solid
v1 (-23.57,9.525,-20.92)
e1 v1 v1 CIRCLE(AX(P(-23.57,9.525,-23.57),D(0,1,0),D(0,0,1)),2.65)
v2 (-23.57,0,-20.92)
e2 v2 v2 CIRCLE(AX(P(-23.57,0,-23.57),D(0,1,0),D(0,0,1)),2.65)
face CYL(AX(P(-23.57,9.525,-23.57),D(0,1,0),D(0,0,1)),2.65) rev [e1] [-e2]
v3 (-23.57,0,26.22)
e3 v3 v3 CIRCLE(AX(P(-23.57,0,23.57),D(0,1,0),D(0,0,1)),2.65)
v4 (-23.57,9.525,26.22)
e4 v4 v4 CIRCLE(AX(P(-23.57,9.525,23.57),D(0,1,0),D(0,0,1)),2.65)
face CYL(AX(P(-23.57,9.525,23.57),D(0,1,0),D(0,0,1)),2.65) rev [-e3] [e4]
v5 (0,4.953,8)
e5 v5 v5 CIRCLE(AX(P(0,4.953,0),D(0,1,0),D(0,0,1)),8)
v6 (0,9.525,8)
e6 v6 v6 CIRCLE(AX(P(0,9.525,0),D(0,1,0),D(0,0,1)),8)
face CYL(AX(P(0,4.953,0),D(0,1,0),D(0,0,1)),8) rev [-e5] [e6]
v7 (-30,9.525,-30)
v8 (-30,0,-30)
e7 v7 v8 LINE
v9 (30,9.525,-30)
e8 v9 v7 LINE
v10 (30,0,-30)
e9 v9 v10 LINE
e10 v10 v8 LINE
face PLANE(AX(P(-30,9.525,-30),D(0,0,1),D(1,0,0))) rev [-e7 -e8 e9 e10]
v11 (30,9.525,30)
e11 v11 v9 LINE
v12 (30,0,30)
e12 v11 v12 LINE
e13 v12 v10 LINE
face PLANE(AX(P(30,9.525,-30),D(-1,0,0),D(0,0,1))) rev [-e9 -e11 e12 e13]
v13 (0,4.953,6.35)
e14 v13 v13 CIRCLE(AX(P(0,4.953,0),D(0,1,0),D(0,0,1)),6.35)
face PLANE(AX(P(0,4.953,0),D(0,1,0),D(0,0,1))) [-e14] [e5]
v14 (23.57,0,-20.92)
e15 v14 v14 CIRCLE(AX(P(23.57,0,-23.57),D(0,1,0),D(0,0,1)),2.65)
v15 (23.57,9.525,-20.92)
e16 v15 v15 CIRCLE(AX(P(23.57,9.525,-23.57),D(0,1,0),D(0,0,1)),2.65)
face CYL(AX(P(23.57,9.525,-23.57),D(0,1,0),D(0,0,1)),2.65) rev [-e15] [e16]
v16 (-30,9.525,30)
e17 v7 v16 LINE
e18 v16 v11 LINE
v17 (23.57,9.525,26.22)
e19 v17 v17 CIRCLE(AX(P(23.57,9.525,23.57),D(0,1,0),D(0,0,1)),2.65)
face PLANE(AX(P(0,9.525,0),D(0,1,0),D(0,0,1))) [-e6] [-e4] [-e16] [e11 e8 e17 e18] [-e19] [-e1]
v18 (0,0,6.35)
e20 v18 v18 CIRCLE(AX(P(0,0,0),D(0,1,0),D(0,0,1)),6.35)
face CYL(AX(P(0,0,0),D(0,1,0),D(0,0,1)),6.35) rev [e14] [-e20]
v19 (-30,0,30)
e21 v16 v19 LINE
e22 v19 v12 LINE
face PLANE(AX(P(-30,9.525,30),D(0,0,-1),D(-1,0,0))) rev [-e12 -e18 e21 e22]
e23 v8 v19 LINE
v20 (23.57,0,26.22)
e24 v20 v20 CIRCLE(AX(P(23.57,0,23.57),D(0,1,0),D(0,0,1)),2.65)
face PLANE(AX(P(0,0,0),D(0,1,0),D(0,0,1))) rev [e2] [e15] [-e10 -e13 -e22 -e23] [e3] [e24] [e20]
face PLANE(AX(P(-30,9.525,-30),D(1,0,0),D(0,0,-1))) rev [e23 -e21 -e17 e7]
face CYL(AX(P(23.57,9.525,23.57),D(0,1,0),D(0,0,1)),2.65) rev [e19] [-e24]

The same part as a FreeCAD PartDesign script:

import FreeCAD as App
import Part
import Sketcher

V = App.Vector

doc = App.newDocument("Part")
params = doc.addObject("Spreadsheet::Sheet", "Params")
for row, (alias, value) in enumerate([
    ("sketch1_width", "60 mm"),
    ("pad1_length", "9.525 mm"),
    ("sketch2_diameter", "5.3 mm"),
    ("hole_diameter", "5.3 mm"),
    ("sketch3_diameter", "16 mm"),
    ("pocket1_length", "4.572 mm"),
    ("sketch4_diameter", "12.7 mm"),
], start=1):
    params.set(f"A{row}", alias)
    params.set(f"B{row}", "=" + value)
    params.setAlias(f"B{row}", alias)

body = doc.addObject("PartDesign::Body", "Body")

# Sketch on XZ plane
sketch1 = body.newObject("Sketcher::SketchObject", "Sketch")
sketch1.AttachmentSupport = (doc.getObject("XZ_Plane"), [""])
sketch1.MapMode = "FlatFace"
sketch1.addGeometry(Part.LineSegment(V(-30, -30, 0), V(-30, 30, 0)), False)
sketch1.addGeometry(Part.LineSegment(V(-30, 30, 0), V(30, 30, 0)), False)
sketch1.addGeometry(Part.LineSegment(V(30, 30, 0), V(30, -30, 0)), False)
sketch1.addGeometry(Part.LineSegment(V(30, -30, 0), V(-30, -30, 0)), False)
sketch1.addConstraint(Sketcher.Constraint("Coincident", 0, 2, 1, 1))
sketch1.addConstraint(Sketcher.Constraint("Coincident", 1, 2, 2, 1))
sketch1.addConstraint(Sketcher.Constraint("Coincident", 2, 2, 3, 1))
sketch1.addConstraint(Sketcher.Constraint("Coincident", 3, 2, 0, 1))
sketch1.addConstraint(Sketcher.Constraint("Vertical", 0))
sketch1.addConstraint(Sketcher.Constraint("Horizontal", 1))
sketch1.addConstraint(Sketcher.Constraint("Vertical", 2))
sketch1.addConstraint(Sketcher.Constraint("Horizontal", 3))
sketch1.addConstraint(Sketcher.Constraint("Symmetric", 0, 2, 2, 2, -1, 1))
sketch1.addConstraint(Sketcher.Constraint("Equal", 3, 0))
sketch1.addConstraint(Sketcher.Constraint("DistanceX", 1, 1, 1, 2, 60.0))
sketch1.setExpression("Constraints[10]", "Params.sketch1_width")
pad1 = body.newObject("PartDesign::Pad", "Pad")
pad1.Profile = sketch1
pad1.setExpression("Length", "Params.pad1_length")
pad1.Reversed = True

# Sketch on XZ plane
sketch2 = body.newObject("Sketcher::SketchObject", "Sketch001")
sketch2.AttachmentSupport = (doc.getObject("XZ_Plane"), [""])
sketch2.MapMode = "FlatFace"
sketch2.AttachmentOffset = App.Placement(V(0, 0, -9.525), App.Rotation())
sketch2.addGeometry(Part.Circle(V(-23.6, -23.6, 0), V(0, 0, 1), 2.6), False)
sketch2.addGeometry(Part.Circle(V(23.6, -23.6, 0), V(0, 0, 1), 2.6), False)
sketch2.addGeometry(Part.Circle(V(23.6, 23.6, 0), V(0, 0, 1), 2.6), False)
sketch2.addGeometry(Part.Circle(V(-23.6, 23.6, 0), V(0, 0, 1), 2.6), False)
sketch2.addConstraint(Sketcher.Constraint("Equal", 0, 1))
sketch2.addConstraint(Sketcher.Constraint("Equal", 1, 2))
sketch2.addConstraint(Sketcher.Constraint("Equal", 2, 3))
sketch2.addConstraint(Sketcher.Constraint("Symmetric", 0, 3, 2, 3, -1, 1))
sketch2.addConstraint(Sketcher.Constraint("Symmetric", 1, 3, 3, 3, -1, 1))
sketch2.addConstraint(Sketcher.Constraint("Symmetric", 0, 3, 1, 3, -2))
sketch2.addConstraint(Sketcher.Constraint("Diameter", 0, 5.3))
sketch2.addConstraint(Sketcher.Constraint("DistanceX", 0, 3, -1, 1, 23.57))
sketch2.addConstraint(Sketcher.Constraint("DistanceY", 0, 3, -1, 1, 23.57))
sketch2.setExpression("Constraints[6]", "Params.sketch2_diameter")
doc.recompute()
hole = body.newObject("PartDesign::Hole", "Hole")
hole.Profile = sketch2
hole.ThreadType = "None"
hole.setExpression("Diameter", "Params.hole_diameter")
hole.DepthType = "ThroughAll"
hole.Reversed = True

# Sketch on XZ plane
sketch3 = body.newObject("Sketcher::SketchObject", "Sketch002")
sketch3.AttachmentSupport = (doc.getObject("XZ_Plane"), [""])
sketch3.MapMode = "FlatFace"
sketch3.AttachmentOffset = App.Placement(V(0, 0, -9.525), App.Rotation())
sketch3.addGeometry(Part.Circle(V(0, 0, 0), V(0, 0, 1), 8), False)
sketch3.addConstraint(Sketcher.Constraint("Coincident", 0, 3, -1, 1))
sketch3.addConstraint(Sketcher.Constraint("Diameter", 0, 16.0))
sketch3.setExpression("Constraints[1]", "Params.sketch3_diameter")
pocket1 = body.newObject("PartDesign::Pocket", "Pocket")
pocket1.Profile = sketch3
pocket1.setExpression("Length", "Params.pocket1_length")
pocket1.Reversed = True

# Sketch on XZ plane
sketch4 = body.newObject("Sketcher::SketchObject", "Sketch003")
sketch4.AttachmentSupport = (doc.getObject("XZ_Plane"), [""])
sketch4.MapMode = "FlatFace"
sketch4.AttachmentOffset = App.Placement(V(0, 0, -4.953), App.Rotation())
sketch4.addGeometry(Part.Circle(V(0, 0, 0), V(0, 0, 1), 6), False)
sketch4.addConstraint(Sketcher.Constraint("Coincident", 0, 3, -1, 1))
sketch4.addConstraint(Sketcher.Constraint("Diameter", 0, 12.7))
sketch4.setExpression("Constraints[1]", "Params.sketch4_diameter")
pocket2 = body.newObject("PartDesign::Pocket", "Pocket001")
pocket2.Profile = sketch4
pocket2.Type = "ThroughAll"
pocket2.Reversed = True

doc.recompute()
